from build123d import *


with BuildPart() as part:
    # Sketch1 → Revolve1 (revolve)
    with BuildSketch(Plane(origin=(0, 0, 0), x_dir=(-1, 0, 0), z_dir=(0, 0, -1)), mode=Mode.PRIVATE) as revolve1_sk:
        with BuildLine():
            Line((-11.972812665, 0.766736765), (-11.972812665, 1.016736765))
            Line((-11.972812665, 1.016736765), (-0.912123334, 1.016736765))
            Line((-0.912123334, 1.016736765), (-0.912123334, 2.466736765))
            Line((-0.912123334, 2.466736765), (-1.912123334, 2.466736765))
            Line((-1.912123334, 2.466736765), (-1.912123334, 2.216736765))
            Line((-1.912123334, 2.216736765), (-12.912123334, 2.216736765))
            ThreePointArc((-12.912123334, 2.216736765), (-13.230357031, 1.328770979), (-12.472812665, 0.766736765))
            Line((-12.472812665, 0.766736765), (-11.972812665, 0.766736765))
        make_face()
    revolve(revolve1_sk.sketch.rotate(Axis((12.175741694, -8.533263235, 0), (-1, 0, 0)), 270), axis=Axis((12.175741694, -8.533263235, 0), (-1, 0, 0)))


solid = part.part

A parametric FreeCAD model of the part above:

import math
import FreeCAD as App
import Part
import Sketcher
from FreeCAD import Vector
Q = App.Units.Quantity

doc = App.newDocument("Part")
body = doc.addObject("PartDesign::Body", "Body")

# Sketch on XY plane
sketch1 = doc.addObject("Sketcher::SketchObject", "Sketch")
body.addObject(sketch1)
sketch1.AttachmentSupport = (doc.XY_Plane, [""])
sketch1.MapMode = "FlatFace"
sketch1.addGeometry([
    Part.LineSegment(Vector(11.97, 0.77, 0), Vector(11.97, 1.02, 0)),  # 0
    Part.LineSegment(Vector(11.97, 1.02, 0), Vector(0.91, 1.02, 0)),  # 1
    Part.LineSegment(Vector(0.91, 1.02, 0), Vector(0.91, 2.47, 0)),  # 2
    Part.LineSegment(Vector(0.91, 2.47, 0), Vector(1.91, 2.47, 0)),  # 3
    Part.LineSegment(Vector(1.91, 2.47, 0), Vector(1.91, 2.22, 0)),  # 4
    Part.LineSegment(Vector(1.91, 2.22, 0), Vector(12.91, 2.22, 0)),  # 5
    Part.ArcOfCircle(Part.Circle(Vector(12.47, 1.56, 0), Vector(0, 0, 1), 0.79), math.radians(-90), math.radians(56)),  # 6
    Part.LineSegment(Vector(12.47, 0.77, 0), Vector(11.97, 0.77, 0)),  # 7
], False)
sketch1.addGeometry(Part.LineSegment(Vector(12.91, -8.53, 0), Vector(0.91, -8.53, 0)), True)  # axis
sketch1.addConstraint([
    Sketcher.Constraint("Coincident", 0, 2, 1, 1),
    Sketcher.Constraint("Coincident", 1, 2, 2, 1),
    Sketcher.Constraint("Coincident", 2, 2, 3, 1),
    Sketcher.Constraint("Coincident", 3, 2, 4, 1),
    Sketcher.Constraint("Coincident", 4, 2, 5, 1),
    Sketcher.Constraint("Coincident", 5, 2, 6, 2),
    Sketcher.Constraint("Tangent", 6, 1, 7, 1),
    Sketcher.Constraint("Coincident", 7, 2, 0, 1),
    Sketcher.Constraint("Vertical", 0),
    Sketcher.Constraint("Horizontal", 1),
    Sketcher.Constraint("Vertical", 2),
    Sketcher.Constraint("Horizontal", 3),
    Sketcher.Constraint("Vertical", 4),
    Sketcher.Constraint("Horizontal", 5),
    Sketcher.Constraint("Horizontal", 7),
    Sketcher.Constraint("Horizontal", 8),
    Sketcher.Constraint("Vertical", 5, 2, 8, 1),
    Sketcher.Constraint("Vertical", 2, 2, 8, 2),
    Sketcher.Constraint("Equal", 0, 4),
    Sketcher.Constraint("DistanceX", 3, 1, 3, 2, Q("1 mm")),
    Sketcher.Constraint("DistanceX", 5, 1, 5, 2, Q("11 mm")),
    Sketcher.Constraint("DistanceX", 7, 2, 7, 1, Q("0.5 mm")),
    Sketcher.Constraint("DistanceY", 8, 2, 2, 2, Q("11 mm")),
    Sketcher.Constraint("DistanceY", 0, 1, 0, 2, Q("0.25 mm")),
    Sketcher.Constraint("DistanceY", 2, 1, 2, 2, Q("1.45 mm")),
    Sketcher.Constraint("Radius", 6, Q("0.79155 mm")),
    Sketcher.Constraint("DistanceX", -1, 1, 6, 3, Q("12.472813 mm")),
    Sketcher.Constraint("DistanceY", -1, 1, 6, 3, Q("1.558286 mm")),
])
revolution = doc.addObject("PartDesign::Revolution", "Revolution")
body.addObject(revolution)
revolution.Profile = sketch1
revolution.ReferenceAxis = (sketch1, ["Axis0"])
revolution.Angle = 360

doc.recompute()
